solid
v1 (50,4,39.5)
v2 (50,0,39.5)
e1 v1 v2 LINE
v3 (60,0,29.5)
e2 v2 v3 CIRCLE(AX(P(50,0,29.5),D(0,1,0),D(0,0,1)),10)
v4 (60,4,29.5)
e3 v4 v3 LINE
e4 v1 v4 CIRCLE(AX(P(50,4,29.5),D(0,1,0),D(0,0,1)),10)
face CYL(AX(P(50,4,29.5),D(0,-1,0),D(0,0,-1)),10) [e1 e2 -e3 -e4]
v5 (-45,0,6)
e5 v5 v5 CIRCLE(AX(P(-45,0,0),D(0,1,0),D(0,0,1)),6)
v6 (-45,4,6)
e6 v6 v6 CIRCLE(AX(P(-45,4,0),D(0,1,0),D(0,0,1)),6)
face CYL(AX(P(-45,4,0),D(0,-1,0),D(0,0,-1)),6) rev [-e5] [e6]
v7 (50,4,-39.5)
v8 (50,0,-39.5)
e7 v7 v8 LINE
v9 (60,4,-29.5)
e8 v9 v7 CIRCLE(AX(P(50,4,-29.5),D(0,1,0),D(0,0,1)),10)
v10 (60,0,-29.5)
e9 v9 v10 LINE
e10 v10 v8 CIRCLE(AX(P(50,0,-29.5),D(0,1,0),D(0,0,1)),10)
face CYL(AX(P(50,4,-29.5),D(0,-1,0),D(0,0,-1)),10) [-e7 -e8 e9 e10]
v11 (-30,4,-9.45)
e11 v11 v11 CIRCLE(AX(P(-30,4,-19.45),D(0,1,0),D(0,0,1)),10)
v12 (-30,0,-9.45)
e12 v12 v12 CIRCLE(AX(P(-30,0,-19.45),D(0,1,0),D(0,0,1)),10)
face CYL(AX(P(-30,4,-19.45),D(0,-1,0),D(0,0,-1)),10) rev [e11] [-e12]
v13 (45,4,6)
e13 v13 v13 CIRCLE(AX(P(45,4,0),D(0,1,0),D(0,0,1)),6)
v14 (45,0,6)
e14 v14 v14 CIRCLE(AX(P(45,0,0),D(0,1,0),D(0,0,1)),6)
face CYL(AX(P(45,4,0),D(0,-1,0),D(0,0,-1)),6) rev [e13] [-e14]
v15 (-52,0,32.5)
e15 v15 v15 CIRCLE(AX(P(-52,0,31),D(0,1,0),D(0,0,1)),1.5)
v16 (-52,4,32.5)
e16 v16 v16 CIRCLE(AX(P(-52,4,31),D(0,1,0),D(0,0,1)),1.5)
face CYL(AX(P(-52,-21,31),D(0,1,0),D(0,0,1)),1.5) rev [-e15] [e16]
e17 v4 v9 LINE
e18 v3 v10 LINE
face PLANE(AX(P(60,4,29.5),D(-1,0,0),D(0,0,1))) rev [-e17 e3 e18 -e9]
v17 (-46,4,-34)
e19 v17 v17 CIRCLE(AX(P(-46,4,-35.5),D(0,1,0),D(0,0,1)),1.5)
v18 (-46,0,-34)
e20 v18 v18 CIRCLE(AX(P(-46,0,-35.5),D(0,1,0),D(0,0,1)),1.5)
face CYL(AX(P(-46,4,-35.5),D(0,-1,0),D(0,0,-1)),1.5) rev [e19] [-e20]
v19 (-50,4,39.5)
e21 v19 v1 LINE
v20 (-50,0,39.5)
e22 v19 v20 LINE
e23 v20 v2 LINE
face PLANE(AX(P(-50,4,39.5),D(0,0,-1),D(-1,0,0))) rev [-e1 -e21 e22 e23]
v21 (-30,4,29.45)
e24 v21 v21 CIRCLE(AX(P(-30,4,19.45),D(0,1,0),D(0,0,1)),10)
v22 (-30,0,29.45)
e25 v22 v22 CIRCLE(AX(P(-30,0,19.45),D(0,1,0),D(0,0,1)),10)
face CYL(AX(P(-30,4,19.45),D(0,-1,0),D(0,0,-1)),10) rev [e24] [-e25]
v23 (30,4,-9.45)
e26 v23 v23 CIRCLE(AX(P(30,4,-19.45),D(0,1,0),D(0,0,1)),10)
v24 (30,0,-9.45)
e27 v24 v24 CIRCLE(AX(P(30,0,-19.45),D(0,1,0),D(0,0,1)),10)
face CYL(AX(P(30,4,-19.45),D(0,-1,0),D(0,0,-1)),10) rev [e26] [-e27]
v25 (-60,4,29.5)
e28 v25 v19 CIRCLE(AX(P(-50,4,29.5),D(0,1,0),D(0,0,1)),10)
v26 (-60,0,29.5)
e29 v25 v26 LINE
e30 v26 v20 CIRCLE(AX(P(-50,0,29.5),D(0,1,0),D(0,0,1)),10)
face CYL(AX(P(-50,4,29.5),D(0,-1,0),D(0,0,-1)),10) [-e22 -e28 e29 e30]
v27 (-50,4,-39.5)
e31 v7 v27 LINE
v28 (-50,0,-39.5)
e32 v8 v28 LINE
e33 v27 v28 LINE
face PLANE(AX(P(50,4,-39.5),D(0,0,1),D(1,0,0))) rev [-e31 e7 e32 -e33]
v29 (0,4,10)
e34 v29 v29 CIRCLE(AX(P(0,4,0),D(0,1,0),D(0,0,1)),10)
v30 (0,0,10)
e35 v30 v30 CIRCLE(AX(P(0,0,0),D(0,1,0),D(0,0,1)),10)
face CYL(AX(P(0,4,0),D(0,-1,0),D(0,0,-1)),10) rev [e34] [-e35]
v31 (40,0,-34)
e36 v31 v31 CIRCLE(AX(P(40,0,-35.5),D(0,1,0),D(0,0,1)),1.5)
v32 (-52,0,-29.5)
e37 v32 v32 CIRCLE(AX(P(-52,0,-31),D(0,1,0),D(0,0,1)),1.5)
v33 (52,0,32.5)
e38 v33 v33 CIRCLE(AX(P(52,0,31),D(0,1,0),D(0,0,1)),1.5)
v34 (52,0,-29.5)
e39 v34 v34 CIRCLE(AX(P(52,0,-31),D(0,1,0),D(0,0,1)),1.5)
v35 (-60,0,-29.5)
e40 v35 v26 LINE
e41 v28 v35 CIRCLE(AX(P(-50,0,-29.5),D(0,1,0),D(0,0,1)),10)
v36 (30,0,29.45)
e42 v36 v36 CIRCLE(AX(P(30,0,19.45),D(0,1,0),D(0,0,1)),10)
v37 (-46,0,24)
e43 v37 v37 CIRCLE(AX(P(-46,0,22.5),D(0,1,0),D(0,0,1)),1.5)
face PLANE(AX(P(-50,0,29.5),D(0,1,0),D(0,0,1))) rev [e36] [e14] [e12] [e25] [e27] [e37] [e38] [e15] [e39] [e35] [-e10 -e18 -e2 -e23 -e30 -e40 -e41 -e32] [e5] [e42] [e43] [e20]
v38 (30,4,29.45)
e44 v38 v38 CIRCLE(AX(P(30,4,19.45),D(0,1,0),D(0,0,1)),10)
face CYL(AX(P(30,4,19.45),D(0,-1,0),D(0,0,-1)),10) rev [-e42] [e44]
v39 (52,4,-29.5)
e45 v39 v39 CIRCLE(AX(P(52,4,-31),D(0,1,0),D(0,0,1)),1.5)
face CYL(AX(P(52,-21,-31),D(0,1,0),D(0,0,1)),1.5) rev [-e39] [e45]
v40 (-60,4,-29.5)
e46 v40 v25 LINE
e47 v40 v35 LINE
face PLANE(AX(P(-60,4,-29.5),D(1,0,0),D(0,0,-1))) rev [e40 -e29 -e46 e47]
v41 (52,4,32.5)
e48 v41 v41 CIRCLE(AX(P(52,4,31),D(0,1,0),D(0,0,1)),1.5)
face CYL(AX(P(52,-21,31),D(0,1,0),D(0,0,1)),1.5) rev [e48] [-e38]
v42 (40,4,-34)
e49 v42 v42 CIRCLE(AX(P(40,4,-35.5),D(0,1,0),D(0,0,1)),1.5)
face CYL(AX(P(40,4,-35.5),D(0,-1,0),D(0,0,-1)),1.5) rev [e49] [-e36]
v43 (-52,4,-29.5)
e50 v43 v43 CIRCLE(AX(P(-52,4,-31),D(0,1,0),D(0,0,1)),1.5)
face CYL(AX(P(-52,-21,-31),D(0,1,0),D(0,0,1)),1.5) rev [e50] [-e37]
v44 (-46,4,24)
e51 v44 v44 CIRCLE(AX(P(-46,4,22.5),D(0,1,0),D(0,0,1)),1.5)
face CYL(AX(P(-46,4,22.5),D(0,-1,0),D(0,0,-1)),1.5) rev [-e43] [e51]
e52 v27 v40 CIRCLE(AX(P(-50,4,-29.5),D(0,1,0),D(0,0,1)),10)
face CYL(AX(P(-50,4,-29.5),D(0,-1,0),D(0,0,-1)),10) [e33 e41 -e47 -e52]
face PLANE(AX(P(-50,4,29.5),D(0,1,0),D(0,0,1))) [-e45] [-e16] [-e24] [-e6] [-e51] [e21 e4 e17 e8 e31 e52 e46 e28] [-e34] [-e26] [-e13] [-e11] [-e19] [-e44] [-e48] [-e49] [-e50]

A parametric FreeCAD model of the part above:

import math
import FreeCAD as App
import Part
import Sketcher

doc = App.newDocument("Part")
params = doc.addObject("Spreadsheet::Sheet", "Params")
for row, (alias, value) in enumerate([
    ("sketch1_diameter", "3 mm"),
    ("sketch1_diameter2", "20 mm"),
    ("sketch1_diameter3", "12 mm"),
    ("sketch1_width", "100 mm"),
    ("sketch1_height", "59 mm"),
    ("pad1_length", "4 mm"),
    ("sketch2_radius", "1.5 mm"),
    ("pocket1_length", "25 mm"),
], start=1):
    params.set(f"A{row}", alias)
    params.set(f"B{row}", "=" + value)
    params.setAlias(f"B{row}", alias)

body = doc.addObject("PartDesign::Body", "Body")

sketch1 = body.newObject("Sketcher::SketchObject", "Sketch")
sketch1.AttachmentSupport = (doc.getObject("XZ_Plane"), [""])
sketch1.MapMode = "FlatFace"
sketch1.addGeometry([
    Part.LineSegment(App.Vector(-50, 39.5, 0), App.Vector(50, 39.5, 0)),
    Part.ArcOfCircle(Part.Circle(App.Vector(50, 29.5, 0), App.Vector(0, 0, 1), 10), math.radians(0), math.radians(90)),
    Part.LineSegment(App.Vector(60, 29.5, 0), App.Vector(60, -29.5, 0)),
    Part.ArcOfCircle(Part.Circle(App.Vector(50, -29.5, 0), App.Vector(0, 0, 1), 10), math.radians(-90), math.radians(0)),
    Part.LineSegment(App.Vector(50, -39.5, 0), App.Vector(-50, -39.5, 0)),
    Part.ArcOfCircle(Part.Circle(App.Vector(-50, -29.5, 0), App.Vector(0, 0, 1), 10), math.radians(180), math.radians(270)),
    Part.LineSegment(App.Vector(-60, -29.5, 0), App.Vector(-60, 29.5, 0)),
    Part.ArcOfCircle(Part.Circle(App.Vector(-50, 29.5, 0), App.Vector(0, 0, 1), 10), math.radians(90), math.radians(180)),
    Part.Circle(App.Vector(-46, 22.5, 0), App.Vector(0, 0, 1), 1.5),
    Part.Circle(App.Vector(-30, 19.4, 0), App.Vector(0, 0, 1), 10),
    Part.Circle(App.Vector(-45, 0, 0), App.Vector(0, 0, 1), 6),
    Part.Circle(App.Vector(30, 19.4, 0), App.Vector(0, 0, 1), 10),
    Part.Circle(App.Vector(0, 0, 0), App.Vector(0, 0, 1), 10),
    Part.Circle(App.Vector(45, 0, 0), App.Vector(0, 0, 1), 6),
    Part.Circle(App.Vector(-30, -19.4, 0), App.Vector(0, 0, 1), 10),
    Part.Circle(App.Vector(-46, -35.5, 0), App.Vector(0, 0, 1), 1.5),
    Part.Circle(App.Vector(30, -19.4, 0), App.Vector(0, 0, 1), 10),
    Part.Circle(App.Vector(40, -35.5, 0), App.Vector(0, 0, 1), 1.5),
], False)
sketch1.addConstraint([
    Sketcher.Constraint("Tangent", 0, 2, 1, 2),
    Sketcher.Constraint("Tangent", 1, 1, 2, 1),
    Sketcher.Constraint("Tangent", 2, 2, 3, 2),
    Sketcher.Constraint("Tangent", 3, 1, 4, 1),
    Sketcher.Constraint("Tangent", 4, 2, 5, 2),
    Sketcher.Constraint("Tangent", 5, 1, 6, 1),
    Sketcher.Constraint("Tangent", 6, 2, 7, 2),
    Sketcher.Constraint("Tangent", 7, 1, 0, 1),
    Sketcher.Constraint("Horizontal", 0),
    Sketcher.Constraint("Vertical", 2),
    Sketcher.Constraint("Horizontal", 4),
    Sketcher.Constraint("Vertical", 6),
    Sketcher.Constraint("Coincident", 12, 3, -1, 1),
    Sketcher.Constraint("Equal", 1, 3),
    Sketcher.Constraint("Equal", 3, 5),
    Sketcher.Constraint("Equal", 5, 7),
    Sketcher.Constraint("Equal", 7, 9),
    Sketcher.Constraint("Equal", 9, 11),
    Sketcher.Constraint("Equal", 11, 12),
    Sketcher.Constraint("Equal", 10, 13),
    Sketcher.Constraint("Equal", 12, 14),
    Sketcher.Constraint("Equal", 8, 15),
    Sketcher.Constraint("Equal", 14, 16),
    Sketcher.Constraint("Equal", 15, 17),
    Sketcher.Constraint("Symmetric", 1, 3, 5, 3, -1, 1),
    Sketcher.Constraint("Symmetric", 10, 3, 13, 3, -1, 1),
    Sketcher.Constraint("Symmetric", 11, 3, 14, 3, -1, 1),
    Sketcher.Constraint("Symmetric", 9, 3, 16, 3, -1, 1),
    Sketcher.Constraint("Symmetric", 9, 3, 11, 3, -2),
    Sketcher.Constraint("PointOnObject", 10, 3, -1),
    Sketcher.Constraint("Horizontal", 15, 3, 17, 3),
    Sketcher.Constraint("Vertical", 8, 3, 15, 3),
    Sketcher.Constraint("Diameter", 8, 3.0),
    Sketcher.Constraint("Diameter", 9, 20.0),
    Sketcher.Constraint("Diameter", 10, 12.0),
    Sketcher.Constraint("DistanceX", 0, 1, 0, 2, 100.0),
    Sketcher.Constraint("DistanceY", 2, 2, 2, 1, 59.0),
    Sketcher.Constraint("DistanceX", 8, 3, -1, 1, 46.0),
    Sketcher.Constraint("DistanceX", 9, 3, -1, 1, 30.0),
    Sketcher.Constraint("DistanceX", 10, 3, -1, 1, 45.0),
    Sketcher.Constraint("DistanceX", -1, 1, 17, 3, 40.0),
    Sketcher.Constraint("DistanceY", 8, 3, 7, 3, 7.0),
    Sketcher.Constraint("DistanceY", 15, 3, 5, 3, 6.0),
    Sketcher.Constraint("DistanceY", 14, 3, 9, 3, 38.9),
])
sketch1.setExpression("Constraints[32]", "Params.sketch1_diameter")
sketch1.setExpression("Constraints[33]", "Params.sketch1_diameter2")
sketch1.setExpression("Constraints[34]", "Params.sketch1_diameter3")
sketch1.setExpression("Constraints[35]", "Params.sketch1_width")
sketch1.setExpression("Constraints[36]", "Params.sketch1_height")
pad1 = body.newObject("PartDesign::Pad", "Pad")
pad1.Profile = sketch1
pad1.setExpression("Length", "Params.pad1_length")
pad1.Reversed = True

sketch2 = body.newObject("Sketcher::SketchObject", "Sketch001")
sketch2.AttachmentSupport = (doc.getObject("XZ_Plane"), [""])
sketch2.MapMode = "FlatFace"
sketch2.AttachmentOffset = App.Placement(App.Vector(0, 0, -4), App.Rotation())
sketch2.addGeometry([
    Part.ArcOfCircle(Part.Circle(App.Vector(-52, -31, 0), App.Vector(0, 0, 1), 1.5), math.radians(90), math.radians(360)),
    Part.ArcOfCircle(Part.Circle(App.Vector(-52, -31, 0), App.Vector(0, 0, 1), 1.5), math.radians(0), math.radians(90)),
    Part.ArcOfCircle(Part.Circle(App.Vector(-52, 31, 0), App.Vector(0, 0, 1), 1.5), math.radians(0), math.radians(270)),
    Part.ArcOfCircle(Part.Circle(App.Vector(-52, 31, 0), App.Vector(0, 0, 1), 1.5), math.radians(-90), math.radians(0)),
    Part.ArcOfCircle(Part.Circle(App.Vector(52, 31, 0), App.Vector(0, 0, 1), 1.5), math.radians(180), math.radians(270)),
    Part.ArcOfCircle(Part.Circle(App.Vector(52, 31, 0), App.Vector(0, 0, 1), 1.5), math.radians(0), math.radians(180)),
    Part.ArcOfCircle(Part.Circle(App.Vector(52, 31, 0), App.Vector(0, 0, 1), 1.5), math.radians(-90), math.radians(0)),
    Part.ArcOfCircle(Part.Circle(App.Vector(52, -31, 0), App.Vector(0, 0, 1), 1.5), math.radians(90), math.radians(180)),
    Part.ArcOfCircle(Part.Circle(App.Vector(52, -31, 0), App.Vector(0, 0, 1), 1.5), math.radians(0), math.radians(90)),
    Part.ArcOfCircle(Part.Circle(App.Vector(52, -31, 0), App.Vector(0, 0, 1), 1.5), math.radians(180), math.radians(360)),
], False)
sketch2.addConstraint([
    Sketcher.Constraint("Tangent", 0, 1, 1, 2),
    Sketcher.Constraint("Coincident", 1, 1, 0, 2),
    Sketcher.Constraint("Tangent", 2, 1, 3, 2),
    Sketcher.Constraint("Coincident", 3, 1, 2, 2),
    Sketcher.Constraint("Tangent", 4, 1, 5, 2),
    Sketcher.Constraint("Tangent", 5, 1, 6, 2),
    Sketcher.Constraint("Tangent", 6, 1, 4, 2),
    Sketcher.Constraint("Tangent", 7, 1, 8, 2),
    Sketcher.Constraint("Tangent", 8, 1, 9, 2),
    Sketcher.Constraint("Tangent", 9, 1, 7, 2),
    Sketcher.Constraint("Equal", 1, 2),
    Sketcher.Constraint("Equal", 3, 4),
    Sketcher.Constraint("Equal", 6, 7),
    Sketcher.Constraint("Symmetric", 0, 3, 4, 3, -1, 1),
    Sketcher.Constraint("Symmetric", 2, 3, 7, 3, -1, 1),
    Sketcher.Constraint("Symmetric", 2, 3, 4, 3, -2),
    Sketcher.Constraint("Horizontal", 9, 3, 1, 1),
    Sketcher.Constraint("Horizontal", 6, 3, 2, 1),
    Sketcher.Constraint("Horizontal", 2, 1, 4, 1),
    Sketcher.Constraint("Horizontal", 4, 1, 5, 1),
    Sketcher.Constraint("Horizontal", 1, 1, 8, 1),
    Sketcher.Constraint("Horizontal", 8, 1, 9, 1),
    Sketcher.Constraint("Vertical", 3, 3, 0, 1),
    Sketcher.Constraint("Vertical", 0, 1, 3, 1),
    Sketcher.Constraint("Vertical", 9, 3, 6, 1),
    Sketcher.Constraint("Vertical", 6, 1, 7, 1),
    Sketcher.Constraint("Radius", 0, 1.5),
    Sketcher.Constraint("DistanceX", 0, 3, -1, 1, 52.0),
    Sketcher.Constraint("DistanceY", 0, 3, -1, 1, 31.0),
])
sketch2.setExpression("Constraints[26]", "Params.sketch2_radius")
pocket1 = body.newObject("PartDesign::Pocket", "Pocket")
pocket1.Profile = sketch2
pocket1.setExpression("Length", "Params.pocket1_length")
pocket1.Reversed = True

doc.recompute()
